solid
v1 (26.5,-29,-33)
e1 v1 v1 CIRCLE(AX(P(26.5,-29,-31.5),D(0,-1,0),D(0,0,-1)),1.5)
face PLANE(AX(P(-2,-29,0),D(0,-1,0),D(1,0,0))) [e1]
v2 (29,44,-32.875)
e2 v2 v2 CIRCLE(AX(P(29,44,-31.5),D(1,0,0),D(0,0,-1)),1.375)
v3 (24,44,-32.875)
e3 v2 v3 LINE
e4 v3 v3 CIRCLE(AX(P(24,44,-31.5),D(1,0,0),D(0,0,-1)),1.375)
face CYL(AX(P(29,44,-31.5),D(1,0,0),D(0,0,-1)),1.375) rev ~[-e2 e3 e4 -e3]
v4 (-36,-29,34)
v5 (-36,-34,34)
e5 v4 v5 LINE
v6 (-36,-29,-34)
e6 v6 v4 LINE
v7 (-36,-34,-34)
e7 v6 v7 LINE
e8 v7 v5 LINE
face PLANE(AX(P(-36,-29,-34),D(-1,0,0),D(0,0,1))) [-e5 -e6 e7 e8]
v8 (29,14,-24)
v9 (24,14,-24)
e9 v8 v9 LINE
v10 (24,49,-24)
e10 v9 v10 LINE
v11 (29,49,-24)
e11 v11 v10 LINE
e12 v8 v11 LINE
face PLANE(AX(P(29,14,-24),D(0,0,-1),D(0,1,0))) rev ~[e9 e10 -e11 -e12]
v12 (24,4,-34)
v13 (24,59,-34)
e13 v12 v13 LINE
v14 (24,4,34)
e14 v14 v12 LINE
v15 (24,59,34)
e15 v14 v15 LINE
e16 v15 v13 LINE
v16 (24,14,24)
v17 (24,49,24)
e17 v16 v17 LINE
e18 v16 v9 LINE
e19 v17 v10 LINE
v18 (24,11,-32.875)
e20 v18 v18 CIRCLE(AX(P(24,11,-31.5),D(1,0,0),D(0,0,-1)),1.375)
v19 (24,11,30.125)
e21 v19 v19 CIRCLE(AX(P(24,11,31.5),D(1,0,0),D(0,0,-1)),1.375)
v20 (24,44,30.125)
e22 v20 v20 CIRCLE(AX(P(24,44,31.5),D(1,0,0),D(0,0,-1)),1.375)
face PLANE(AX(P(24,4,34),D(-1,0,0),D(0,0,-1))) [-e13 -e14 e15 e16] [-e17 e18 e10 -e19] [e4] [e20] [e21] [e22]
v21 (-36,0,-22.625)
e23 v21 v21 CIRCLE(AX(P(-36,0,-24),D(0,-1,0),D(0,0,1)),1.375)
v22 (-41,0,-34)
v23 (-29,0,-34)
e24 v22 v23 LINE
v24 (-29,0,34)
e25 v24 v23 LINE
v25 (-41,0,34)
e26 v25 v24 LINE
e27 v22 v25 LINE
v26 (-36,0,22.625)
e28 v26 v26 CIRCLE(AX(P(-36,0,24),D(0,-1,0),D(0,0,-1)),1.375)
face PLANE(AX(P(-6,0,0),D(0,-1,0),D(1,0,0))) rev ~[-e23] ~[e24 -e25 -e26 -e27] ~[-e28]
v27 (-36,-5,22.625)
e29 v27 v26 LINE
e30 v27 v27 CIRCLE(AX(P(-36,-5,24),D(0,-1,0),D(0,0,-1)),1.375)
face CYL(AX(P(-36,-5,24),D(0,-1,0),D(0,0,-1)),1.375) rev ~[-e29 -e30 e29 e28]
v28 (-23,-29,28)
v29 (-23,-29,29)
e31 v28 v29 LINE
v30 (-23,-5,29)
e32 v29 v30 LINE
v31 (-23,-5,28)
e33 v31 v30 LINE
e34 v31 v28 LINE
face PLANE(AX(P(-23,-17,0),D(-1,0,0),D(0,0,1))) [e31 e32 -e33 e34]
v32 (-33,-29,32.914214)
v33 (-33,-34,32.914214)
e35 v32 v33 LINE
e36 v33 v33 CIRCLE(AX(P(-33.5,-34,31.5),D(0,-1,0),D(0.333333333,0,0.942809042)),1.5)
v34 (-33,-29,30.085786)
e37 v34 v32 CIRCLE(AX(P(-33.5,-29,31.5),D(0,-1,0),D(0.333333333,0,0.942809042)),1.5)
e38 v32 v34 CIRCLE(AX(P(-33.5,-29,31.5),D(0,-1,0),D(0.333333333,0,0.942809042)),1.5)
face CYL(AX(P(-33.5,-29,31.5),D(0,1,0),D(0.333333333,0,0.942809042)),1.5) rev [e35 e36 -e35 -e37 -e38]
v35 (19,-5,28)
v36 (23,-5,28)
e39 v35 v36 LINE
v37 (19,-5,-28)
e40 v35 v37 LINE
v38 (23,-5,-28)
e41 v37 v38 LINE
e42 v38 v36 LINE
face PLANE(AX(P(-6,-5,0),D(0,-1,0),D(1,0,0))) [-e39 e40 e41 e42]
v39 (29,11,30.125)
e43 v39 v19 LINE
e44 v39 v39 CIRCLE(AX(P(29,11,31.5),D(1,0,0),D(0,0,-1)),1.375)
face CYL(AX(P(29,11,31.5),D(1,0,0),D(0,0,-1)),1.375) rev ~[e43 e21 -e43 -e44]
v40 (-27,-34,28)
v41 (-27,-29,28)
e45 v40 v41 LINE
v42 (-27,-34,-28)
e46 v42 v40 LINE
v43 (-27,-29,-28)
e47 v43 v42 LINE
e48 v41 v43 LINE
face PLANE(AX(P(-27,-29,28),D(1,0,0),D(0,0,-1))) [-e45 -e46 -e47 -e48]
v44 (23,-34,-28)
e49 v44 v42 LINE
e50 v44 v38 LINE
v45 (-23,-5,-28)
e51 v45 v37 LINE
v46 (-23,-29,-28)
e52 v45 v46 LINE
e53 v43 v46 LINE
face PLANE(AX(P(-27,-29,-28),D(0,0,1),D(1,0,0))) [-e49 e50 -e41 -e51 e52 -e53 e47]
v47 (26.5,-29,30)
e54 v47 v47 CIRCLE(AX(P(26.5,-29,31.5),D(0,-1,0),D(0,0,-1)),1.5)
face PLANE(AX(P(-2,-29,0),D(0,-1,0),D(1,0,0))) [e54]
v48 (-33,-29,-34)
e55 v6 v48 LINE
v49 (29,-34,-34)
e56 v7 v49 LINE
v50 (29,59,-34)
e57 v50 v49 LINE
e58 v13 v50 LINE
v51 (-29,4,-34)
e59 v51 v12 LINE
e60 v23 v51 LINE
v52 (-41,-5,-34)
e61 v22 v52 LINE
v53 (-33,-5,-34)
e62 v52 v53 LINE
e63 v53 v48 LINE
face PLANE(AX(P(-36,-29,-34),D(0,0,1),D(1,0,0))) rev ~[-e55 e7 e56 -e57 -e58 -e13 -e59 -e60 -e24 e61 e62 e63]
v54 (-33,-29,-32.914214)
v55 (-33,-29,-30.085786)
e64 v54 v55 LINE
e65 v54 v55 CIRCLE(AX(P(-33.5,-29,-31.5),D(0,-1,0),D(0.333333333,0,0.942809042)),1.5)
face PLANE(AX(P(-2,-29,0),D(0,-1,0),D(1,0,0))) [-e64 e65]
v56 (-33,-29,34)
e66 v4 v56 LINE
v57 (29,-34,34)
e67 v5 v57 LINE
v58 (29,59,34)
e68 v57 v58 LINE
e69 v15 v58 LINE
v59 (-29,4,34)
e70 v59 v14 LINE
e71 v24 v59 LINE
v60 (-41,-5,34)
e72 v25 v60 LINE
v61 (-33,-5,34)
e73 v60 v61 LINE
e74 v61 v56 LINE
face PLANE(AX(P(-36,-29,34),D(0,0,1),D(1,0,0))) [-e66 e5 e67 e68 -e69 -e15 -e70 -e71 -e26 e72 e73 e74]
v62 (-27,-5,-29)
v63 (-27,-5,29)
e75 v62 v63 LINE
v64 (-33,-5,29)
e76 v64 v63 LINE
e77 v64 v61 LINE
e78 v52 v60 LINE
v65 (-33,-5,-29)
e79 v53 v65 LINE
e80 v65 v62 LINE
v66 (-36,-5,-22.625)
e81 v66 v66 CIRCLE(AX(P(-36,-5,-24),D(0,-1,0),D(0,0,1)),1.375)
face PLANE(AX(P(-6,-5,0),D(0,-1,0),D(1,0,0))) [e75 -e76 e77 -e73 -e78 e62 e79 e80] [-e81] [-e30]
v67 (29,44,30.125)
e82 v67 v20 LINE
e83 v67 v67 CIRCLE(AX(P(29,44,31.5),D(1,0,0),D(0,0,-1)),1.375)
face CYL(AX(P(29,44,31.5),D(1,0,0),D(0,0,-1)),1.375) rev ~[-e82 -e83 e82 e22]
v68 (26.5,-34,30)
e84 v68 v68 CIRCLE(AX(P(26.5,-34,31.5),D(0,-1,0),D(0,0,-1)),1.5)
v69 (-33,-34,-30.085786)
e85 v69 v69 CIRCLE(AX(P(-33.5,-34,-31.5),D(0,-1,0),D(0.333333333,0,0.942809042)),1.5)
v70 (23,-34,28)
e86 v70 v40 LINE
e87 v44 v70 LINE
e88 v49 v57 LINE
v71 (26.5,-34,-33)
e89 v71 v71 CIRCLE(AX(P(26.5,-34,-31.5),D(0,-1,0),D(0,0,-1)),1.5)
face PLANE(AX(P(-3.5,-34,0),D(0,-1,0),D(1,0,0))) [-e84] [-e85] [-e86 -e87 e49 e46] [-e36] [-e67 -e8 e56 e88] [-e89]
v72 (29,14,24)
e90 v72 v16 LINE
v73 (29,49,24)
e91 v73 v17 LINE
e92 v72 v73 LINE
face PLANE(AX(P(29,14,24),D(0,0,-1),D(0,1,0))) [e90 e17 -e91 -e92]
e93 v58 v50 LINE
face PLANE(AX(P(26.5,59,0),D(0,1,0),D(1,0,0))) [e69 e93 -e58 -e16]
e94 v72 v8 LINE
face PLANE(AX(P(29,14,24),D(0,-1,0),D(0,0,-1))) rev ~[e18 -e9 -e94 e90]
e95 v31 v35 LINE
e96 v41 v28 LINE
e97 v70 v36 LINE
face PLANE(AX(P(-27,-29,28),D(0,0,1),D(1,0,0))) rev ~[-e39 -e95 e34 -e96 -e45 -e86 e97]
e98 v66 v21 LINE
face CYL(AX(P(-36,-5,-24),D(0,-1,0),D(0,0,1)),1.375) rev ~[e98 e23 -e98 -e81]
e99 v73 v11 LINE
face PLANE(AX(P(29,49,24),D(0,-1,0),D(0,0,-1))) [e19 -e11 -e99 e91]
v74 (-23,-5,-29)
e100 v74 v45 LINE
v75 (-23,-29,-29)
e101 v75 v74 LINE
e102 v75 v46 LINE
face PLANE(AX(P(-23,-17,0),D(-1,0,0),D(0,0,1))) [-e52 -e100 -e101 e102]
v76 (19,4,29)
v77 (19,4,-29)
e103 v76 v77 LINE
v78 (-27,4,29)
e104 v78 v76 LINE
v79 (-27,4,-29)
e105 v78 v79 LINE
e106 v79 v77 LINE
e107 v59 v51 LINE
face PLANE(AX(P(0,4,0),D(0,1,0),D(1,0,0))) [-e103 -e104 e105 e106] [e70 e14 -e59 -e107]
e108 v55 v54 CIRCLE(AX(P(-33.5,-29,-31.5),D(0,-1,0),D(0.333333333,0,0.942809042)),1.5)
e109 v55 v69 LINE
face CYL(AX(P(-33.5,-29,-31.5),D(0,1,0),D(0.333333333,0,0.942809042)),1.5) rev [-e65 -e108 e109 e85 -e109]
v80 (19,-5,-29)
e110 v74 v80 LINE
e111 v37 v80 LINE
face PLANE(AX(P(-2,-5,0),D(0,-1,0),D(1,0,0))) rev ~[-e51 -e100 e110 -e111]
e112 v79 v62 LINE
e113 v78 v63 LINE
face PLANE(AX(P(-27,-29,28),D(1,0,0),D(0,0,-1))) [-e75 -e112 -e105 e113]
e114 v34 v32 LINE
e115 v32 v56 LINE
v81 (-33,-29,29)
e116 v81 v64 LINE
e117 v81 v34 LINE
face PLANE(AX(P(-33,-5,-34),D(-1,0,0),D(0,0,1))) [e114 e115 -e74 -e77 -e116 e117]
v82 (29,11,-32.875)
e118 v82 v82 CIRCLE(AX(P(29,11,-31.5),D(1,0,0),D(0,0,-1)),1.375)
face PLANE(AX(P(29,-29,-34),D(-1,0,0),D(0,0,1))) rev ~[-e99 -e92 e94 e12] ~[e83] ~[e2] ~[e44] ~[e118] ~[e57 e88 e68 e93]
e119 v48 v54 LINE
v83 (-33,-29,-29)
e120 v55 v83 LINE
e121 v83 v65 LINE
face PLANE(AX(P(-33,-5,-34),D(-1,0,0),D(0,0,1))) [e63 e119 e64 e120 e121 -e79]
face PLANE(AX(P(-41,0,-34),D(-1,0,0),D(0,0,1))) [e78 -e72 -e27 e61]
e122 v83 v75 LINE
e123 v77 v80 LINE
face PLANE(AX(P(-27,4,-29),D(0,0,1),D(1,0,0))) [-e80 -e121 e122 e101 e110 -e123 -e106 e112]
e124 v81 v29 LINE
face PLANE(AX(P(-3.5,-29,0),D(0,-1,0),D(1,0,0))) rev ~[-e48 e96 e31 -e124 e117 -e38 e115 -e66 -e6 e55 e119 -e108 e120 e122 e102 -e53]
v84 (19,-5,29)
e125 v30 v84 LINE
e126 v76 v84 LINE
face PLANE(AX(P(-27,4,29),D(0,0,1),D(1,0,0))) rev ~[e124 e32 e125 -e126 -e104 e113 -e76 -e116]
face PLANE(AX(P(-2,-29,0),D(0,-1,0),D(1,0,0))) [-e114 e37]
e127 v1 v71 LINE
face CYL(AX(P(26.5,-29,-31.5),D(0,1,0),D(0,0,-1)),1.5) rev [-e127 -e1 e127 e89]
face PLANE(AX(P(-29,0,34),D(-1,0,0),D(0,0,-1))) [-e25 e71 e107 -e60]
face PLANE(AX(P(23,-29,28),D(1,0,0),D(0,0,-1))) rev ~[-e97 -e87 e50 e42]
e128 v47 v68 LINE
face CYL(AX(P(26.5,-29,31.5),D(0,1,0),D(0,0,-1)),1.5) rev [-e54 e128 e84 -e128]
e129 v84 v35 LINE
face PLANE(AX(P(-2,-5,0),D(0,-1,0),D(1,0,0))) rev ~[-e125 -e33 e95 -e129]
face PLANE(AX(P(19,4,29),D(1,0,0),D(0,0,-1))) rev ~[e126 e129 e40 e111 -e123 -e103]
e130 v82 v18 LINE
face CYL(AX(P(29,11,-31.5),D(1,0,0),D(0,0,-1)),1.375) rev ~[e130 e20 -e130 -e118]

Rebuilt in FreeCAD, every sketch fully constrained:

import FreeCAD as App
import Part
import Sketcher

V = App.Vector


def add_polygon(sketch, points):
    """Adds a closed chain of lines whose ends are joined by coincident constraints."""
    first, n = sketch.GeometryCount, len(points)
    for a, b in zip(points, points[1:] + points[:1]):
        sketch.addGeometry(Part.LineSegment(App.Vector(*a, 0), App.Vector(*b, 0)), False)
    for i in range(n):
        sketch.addConstraint(Sketcher.Constraint("Coincident", first + i, 2, first + (i + 1) % n, 1))

doc = App.newDocument("Part")
body = doc.addObject("PartDesign::Body", "Body")

sketch1 = body.newObject("Sketcher::SketchObject", "Sketch")
sketch1.AttachmentSupport = (doc.getObject("XZ_Plane"), [""])
sketch1.MapMode = "FlatFace"
add_polygon(sketch1, [(-29, -34), (-29, 34), (29, 34), (29, -34)])
sketch1.addConstraint([
    Sketcher.Constraint("Vertical", 0),
    Sketcher.Constraint("Horizontal", 1),
    Sketcher.Constraint("Vertical", 2),
    Sketcher.Constraint("Horizontal", 3),
    Sketcher.Constraint("Symmetric", 0, 2, 2, 2, -1, 1),
    Sketcher.Constraint("DistanceX", 1, 1, 1, 2, 58.0),
    Sketcher.Constraint("DistanceY", 0, 1, 0, 2, 68.0),
])
pad1 = body.newObject("PartDesign::Pad", "Pad")
pad1.Profile = sketch1
pad1.Length = 4
pad1.Reversed = True

sketch2 = body.newObject("Sketcher::SketchObject", "Sketch001")
sketch2.AttachmentSupport = (doc.getObject("XZ_Plane"), [""])
sketch2.MapMode = "FlatFace"
sketch2.AttachmentOffset = App.Placement(V(0, 0, -4), App.Rotation())
add_polygon(sketch2, [(24, -34), (24, 34), (29, 34), (29, -34)])
sketch2.addConstraint([
    Sketcher.Constraint("Vertical", 0),
    Sketcher.Constraint("Horizontal", 1),
    Sketcher.Constraint("Vertical", 2),
    Sketcher.Constraint("Horizontal", 3),
    Sketcher.Constraint("DistanceX", 1, 1, 1, 2, 5.0),
    Sketcher.Constraint("DistanceY", 0, 1, 0, 2, 68.0),
    Sketcher.Constraint("DistanceX", -1, 1, 0, 2, 24.0),
    Sketcher.Constraint("DistanceY", -1, 1, 0, 2, 34.0),
])
pad2 = body.newObject("PartDesign::Pad", "Pad001")
pad2.Profile = sketch2
pad2.Length = 55
pad2.Reversed = True

sketch3 = body.newObject("Sketcher::SketchObject", "Sketch002")
sketch3.AttachmentSupport = (doc.getObject("XZ_Plane"), [""])
sketch3.MapMode = "FlatFace"
add_polygon(sketch3, [(-41, 34), (-41, -34), (29, -34), (29, 34)])
sketch3.addConstraint([
    Sketcher.Constraint("Vertical", 0),
    Sketcher.Constraint("Horizontal", 1),
    Sketcher.Constraint("Vertical", 2),
    Sketcher.Constraint("Horizontal", 3),
    Sketcher.Constraint("DistanceX", 1, 1, 1, 2, 70.0),
    Sketcher.Constraint("DistanceY", 0, 2, 0, 1, 68.0),
    Sketcher.Constraint("DistanceX", 0, 2, -1, 1, 41.0),
    Sketcher.Constraint("DistanceY", 0, 2, -1, 1, 34.0),
])
pad3 = body.newObject("PartDesign::Pad", "Pad002")
pad3.Profile = sketch3
pad3.Length = 5

sketch4 = body.newObject("Sketcher::SketchObject", "Sketch003")
sketch4.AttachmentSupport = (doc.getObject("XZ_Plane"), [""])
sketch4.MapMode = "FlatFace"
sketch4.AttachmentOffset = App.Placement(V(0, 0, 5), App.Rotation())
sketch4.addGeometry(Part.Circle(V(-36, 24, 0), V(0, 0, 1), 1.4), False)
sketch4.addConstraint([
    Sketcher.Constraint("Diameter", 0, 2.75),
    Sketcher.Constraint("DistanceX", 0, 3, -1, 1, 36.0),
    Sketcher.Constraint("DistanceY", -1, 1, 0, 3, 24.0),
])
pocket1 = body.newObject("PartDesign::Pocket", "Pocket")
pocket1.Profile = sketch4
pocket1.Type = "UpToFirst"

sketch5 = body.newObject("Sketcher::SketchObject", "Sketch004")
sketch5.AttachmentSupport = (doc.getObject("XZ_Plane"), [""])
sketch5.MapMode = "FlatFace"
sketch5.AttachmentOffset = App.Placement(V(0, 0, 5), App.Rotation())
sketch5.addGeometry(Part.Circle(V(-36, -24, 0), V(0, 0, 1), 1.4), False)
sketch5.addConstraint([
    Sketcher.Constraint("Diameter", 0, 2.75),
    Sketcher.Constraint("DistanceX", 0, 3, -1, 1, 36.0),
    Sketcher.Constraint("DistanceY", 0, 3, -1, 1, 24.0),
])
pocket2 = body.newObject("PartDesign::Pocket", "Pocket001")
pocket2.Profile = sketch5
pocket2.Type = "UpToFirst"

sketch6 = body.newObject("Sketcher::SketchObject", "Sketch005")
sketch6.AttachmentSupport = (doc.getObject("YZ_Plane"), [""])
sketch6.MapMode = "FlatFace"
sketch6.AttachmentOffset = App.Placement(V(0, 0, 29), App.Rotation())
sketch6.addGeometry(Part.Circle(V(44, 31.5, 0), V(0, 0, 1), 1.4), False)
sketch6.addConstraint([
    Sketcher.Constraint("Diameter", 0, 2.75),
    Sketcher.Constraint("DistanceX", -1, 1, 0, 3, 44.0),
    Sketcher.Constraint("DistanceY", -1, 1, 0, 3, 31.5),
])
pocket3 = body.newObject("PartDesign::Pocket", "Pocket002")
pocket3.Profile = sketch6
pocket3.Type = "UpToFirst"

sketch7 = body.newObject("Sketcher::SketchObject", "Sketch006")
sketch7.AttachmentSupport = (doc.getObject("YZ_Plane"), [""])
sketch7.MapMode = "FlatFace"
sketch7.AttachmentOffset = App.Placement(V(0, 0, 29), App.Rotation())
sketch7.addGeometry(Part.Circle(V(11, 31.5, 0), V(0, 0, 1), 1.4), False)
sketch7.addConstraint([
    Sketcher.Constraint("Diameter", 0, 2.75),
    Sketcher.Constraint("DistanceX", -1, 1, 0, 3, 11.0),
    Sketcher.Constraint("DistanceY", -1, 1, 0, 3, 31.5),
])
pocket4 = body.newObject("PartDesign::Pocket", "Pocket003")
pocket4.Profile = sketch7
pocket4.Type = "UpToFirst"

sketch8 = body.newObject("Sketcher::SketchObject", "Sketch007")
sketch8.AttachmentSupport = (doc.getObject("YZ_Plane"), [""])
sketch8.MapMode = "FlatFace"
sketch8.AttachmentOffset = App.Placement(V(0, 0, 29), App.Rotation())
sketch8.addGeometry(Part.Circle(V(11, -31.5, 0), V(0, 0, 1), 1.4), False)
sketch8.addConstraint([
    Sketcher.Constraint("Diameter", 0, 2.75),
    Sketcher.Constraint("DistanceX", -1, 1, 0, 3, 11.0),
    Sketcher.Constraint("DistanceY", 0, 3, -1, 1, 31.5),
])
pocket5 = body.newObject("PartDesign::Pocket", "Pocket004")
pocket5.Profile = sketch8
pocket5.Type = "UpToFirst"

sketch9 = body.newObject("Sketcher::SketchObject", "Sketch008")
sketch9.AttachmentSupport = (doc.getObject("YZ_Plane"), [""])
sketch9.MapMode = "FlatFace"
sketch9.AttachmentOffset = App.Placement(V(0, 0, 29), App.Rotation())
sketch9.addGeometry(Part.Circle(V(44, -31.5, 0), V(0, 0, 1), 1.4), False)
sketch9.addConstraint([
    Sketcher.Constraint("Diameter", 0, 2.75),
    Sketcher.Constraint("DistanceX", -1, 1, 0, 3, 44.0),
    Sketcher.Constraint("DistanceY", 0, 3, -1, 1, 31.5),
])
pocket6 = body.newObject("PartDesign::Pocket", "Pocket005")
pocket6.Profile = sketch9
pocket6.Type = "UpToFirst"

sketch10 = body.newObject("Sketcher::SketchObject", "Sketch009")
sketch10.AttachmentSupport = (doc.getObject("YZ_Plane"), [""])
sketch10.MapMode = "FlatFace"
sketch10.AttachmentOffset = App.Placement(V(0, 0, 29), App.Rotation())
add_polygon(sketch10, [(49, 24), (14, 24), (14, -24), (49, -24)])
sketch10.addConstraint([
    Sketcher.Constraint("Horizontal", 0),
    Sketcher.Constraint("Vertical", 1),
    Sketcher.Constraint("Horizontal", 2),
    Sketcher.Constraint("Vertical", 3),
    Sketcher.Constraint("DistanceX", 0, 2, 0, 1, 35.0),
    Sketcher.Constraint("DistanceY", 1, 2, 1, 1, 48.0),
    Sketcher.Constraint("DistanceX", -1, 1, 0, 2, 14.0),
    Sketcher.Constraint("DistanceY", -1, 1, 0, 2, 24.0),
])
pocket7 = body.newObject("PartDesign::Pocket", "Pocket006")
pocket7.Profile = sketch10
pocket7.Type = "UpToFirst"

sketch11 = body.newObject("Sketcher::SketchObject", "Sketch010")
sketch11.AttachmentSupport = (doc.getObject("XZ_Plane"), [""])
sketch11.MapMode = "FlatFace"
sketch11.AttachmentOffset = App.Placement(V(0, 0, -4), App.Rotation())
add_polygon(sketch11, [(-27, -29), (-27, 29), (19, 29), (19, -29)])
sketch11.addConstraint([
    Sketcher.Constraint("Vertical", 0),
    Sketcher.Constraint("Horizontal", 1),
    Sketcher.Constraint("Vertical", 2),
    Sketcher.Constraint("Horizontal", 3),
    Sketcher.Constraint("DistanceX", 1, 1, 1, 2, 46.0),
    Sketcher.Constraint("DistanceY", 0, 1, 0, 2, 58.0),
    Sketcher.Constraint("DistanceX", 0, 2, -1, 1, 27.0),
    Sketcher.Constraint("DistanceY", -1, 1, 0, 2, 29.0),
])
pocket8 = body.newObject("PartDesign::Pocket", "Pocket007")
pocket8.Profile = sketch11
pocket8.Type = "UpToFirst"
pocket8.Reversed = True

sketch12 = body.newObject("Sketcher::SketchObject", "Sketch011")
sketch12.AttachmentSupport = (doc.getObject("XZ_Plane"), [""])
sketch12.MapMode = "FlatFace"
sketch12.AttachmentOffset = App.Placement(V(0, 0, 5), App.Rotation())
add_polygon(sketch12, [(-33, 34), (-33, -34), (29, -34), (29, 34)])
add_polygon(sketch12, [(23, -28), (-27, -28), (-27, 28), (23, 28)])
sketch12.addConstraint([
    Sketcher.Constraint("Vertical", 0),
    Sketcher.Constraint("Horizontal", 1),
    Sketcher.Constraint("Vertical", 2),
    Sketcher.Constraint("Horizontal", 3),
    Sketcher.Constraint("Horizontal", 4),
    Sketcher.Constraint("Vertical", 5),
    Sketcher.Constraint("Horizontal", 6),
    Sketcher.Constraint("Vertical", 7),
    Sketcher.Constraint("DistanceX", 1, 1, 1, 2, 62.0),
    Sketcher.Constraint("DistanceX", 4, 2, 4, 1, 50.0),
    Sketcher.Constraint("DistanceY", 0, 2, 0, 1, 68.0),
    Sketcher.Constraint("DistanceY", 5, 1, 5, 2, 56.0),
    Sketcher.Constraint("DistanceX", 0, 2, -1, 1, 33.0),
    Sketcher.Constraint("DistanceY", 0, 2, -1, 1, 34.0),
    Sketcher.Constraint("DistanceX", 4, 2, -1, 1, 27.0),
    Sketcher.Constraint("DistanceY", 4, 2, -1, 1, 28.0),
])
pad4 = body.newObject("PartDesign::Pad", "Pad003")
pad4.Profile = sketch12
pad4.Length = 24

sketch13 = body.newObject("Sketcher::SketchObject", "Sketch012")
sketch13.AttachmentSupport = (doc.getObject("XZ_Plane"), [""])
sketch13.MapMode = "FlatFace"
sketch13.AttachmentOffset = App.Placement(V(0, 0, 29), App.Rotation())
add_polygon(sketch13, [(-36, 34), (-36, -34), (29, -34), (29, 34)])
sketch13.addGeometry(Part.Circle(V(-33.5, -31.5, 0), V(0, 0, 1), 1.5), False)
sketch13.addGeometry(Part.Circle(V(26.5, -31.5, 0), V(0, 0, 1), 1.5), False)
sketch13.addGeometry(Part.Circle(V(-33.5, 31.5, 0), V(0, 0, 1), 1.5), False)
sketch13.addGeometry(Part.Circle(V(-3.5, 0, 0), V(0, 0, 1), 1.5), False)
sketch13.addGeometry(Part.Circle(V(26.5, 31.5, 0), V(0, 0, 1), 1.5), False)
sketch13.addConstraint([
    Sketcher.Constraint("Vertical", 0),
    Sketcher.Constraint("Horizontal", 1),
    Sketcher.Constraint("Vertical", 2),
    Sketcher.Constraint("Horizontal", 3),
    Sketcher.Constraint("Equal", 4, 5),
    Sketcher.Constraint("Equal", 5, 6),
    Sketcher.Constraint("Equal", 6, 7),
    Sketcher.Constraint("Equal", 7, 8),
    Sketcher.Constraint("Symmetric", 4, 3, 6, 3, -1),
    Sketcher.Constraint("Symmetric", 5, 3, 8, 3, -1),
    Sketcher.Constraint("PointOnObject", 7, 3, -1),
    Sketcher.Constraint("Horizontal", 4, 3, 5, 3),
    Sketcher.Constraint("Diameter", 4, 3.0),
    Sketcher.Constraint("DistanceX", 1, 1, 1, 2, 65.0),
    Sketcher.Constraint("DistanceY", 0, 2, 0, 1, 68.0),
    Sketcher.Constraint("DistanceX", 0, 2, -1, 1, 36.0),
    Sketcher.Constraint("DistanceY", 0, 2, -1, 1, 34.0),
    Sketcher.Constraint("DistanceX", 4, 3, 5, 3, 60.0),
    Sketcher.Constraint("DistanceY", 4, 3, 6, 3, 63.0),
    Sketcher.Constraint("DistanceX", 4, 3, 7, 3, 30.0),
    Sketcher.Constraint("DistanceX", 4, 3, -1, 1, 33.5),
])
pad5 = body.newObject("PartDesign::Pad", "Pad004")
pad5.Profile = sketch13
pad5.Length = 5

sketch14 = body.newObject("Sketcher::SketchObject", "Sketch013")
sketch14.AttachmentSupport = (doc.getObject("XZ_Plane"), [""])
sketch14.MapMode = "FlatFace"
sketch14.AttachmentOffset = App.Placement(V(0, 0, 29), App.Rotation())
add_polygon(sketch14, [(-27, -28), (-27, 28), (23, 28), (23, -28)])
sketch14.addConstraint([
    Sketcher.Constraint("Vertical", 0),
    Sketcher.Constraint("Horizontal", 1),
    Sketcher.Constraint("Vertical", 2),
    Sketcher.Constraint("Horizontal", 3),
    Sketcher.Constraint("DistanceX", 1, 1, 1, 2, 50.0),
    Sketcher.Constraint("DistanceY", 0, 1, 0, 2, 56.0),
    Sketcher.Constraint("DistanceX", 0, 2, -1, 1, 27.0),
    Sketcher.Constraint("DistanceY", -1, 1, 0, 2, 28.0),
])
pocket9 = body.newObject("PartDesign::Pocket", "Pocket008")
pocket9.Profile = sketch14
pocket9.Length = 10
pocket9.Reversed = True

sketch15 = body.newObject("Sketcher::SketchObject", "Sketch014")
sketch15.AttachmentSupport = (doc.getObject("YZ_Plane"), [""])
sketch15.MapMode = "FlatFace"
sketch15.AttachmentOffset = App.Placement(V(0, 0, -33), App.Rotation())
add_polygon(sketch15, [(-5, -29), (-29, -29), (-29, 29), (-5, 29)])
sketch15.addConstraint([
    Sketcher.Constraint("Horizontal", 0),
    Sketcher.Constraint("Vertical", 1),
    Sketcher.Constraint("Horizontal", 2),
    Sketcher.Constraint("Vertical", 3),
    Sketcher.Constraint("DistanceX", 0, 2, 0, 1, 24.0),
    Sketcher.Constraint("DistanceY", 1, 1, 1, 2, 58.0),
    Sketcher.Constraint("DistanceX", 0, 2, -1, 1, 29.0),
    Sketcher.Constraint("DistanceY", 0, 2, -1, 1, 29.0),
])
pocket10 = body.newObject("PartDesign::Pocket", "Pocket009")
pocket10.Profile = sketch15
pocket10.Length = 10
pocket10.Reversed = True

doc.recompute()
